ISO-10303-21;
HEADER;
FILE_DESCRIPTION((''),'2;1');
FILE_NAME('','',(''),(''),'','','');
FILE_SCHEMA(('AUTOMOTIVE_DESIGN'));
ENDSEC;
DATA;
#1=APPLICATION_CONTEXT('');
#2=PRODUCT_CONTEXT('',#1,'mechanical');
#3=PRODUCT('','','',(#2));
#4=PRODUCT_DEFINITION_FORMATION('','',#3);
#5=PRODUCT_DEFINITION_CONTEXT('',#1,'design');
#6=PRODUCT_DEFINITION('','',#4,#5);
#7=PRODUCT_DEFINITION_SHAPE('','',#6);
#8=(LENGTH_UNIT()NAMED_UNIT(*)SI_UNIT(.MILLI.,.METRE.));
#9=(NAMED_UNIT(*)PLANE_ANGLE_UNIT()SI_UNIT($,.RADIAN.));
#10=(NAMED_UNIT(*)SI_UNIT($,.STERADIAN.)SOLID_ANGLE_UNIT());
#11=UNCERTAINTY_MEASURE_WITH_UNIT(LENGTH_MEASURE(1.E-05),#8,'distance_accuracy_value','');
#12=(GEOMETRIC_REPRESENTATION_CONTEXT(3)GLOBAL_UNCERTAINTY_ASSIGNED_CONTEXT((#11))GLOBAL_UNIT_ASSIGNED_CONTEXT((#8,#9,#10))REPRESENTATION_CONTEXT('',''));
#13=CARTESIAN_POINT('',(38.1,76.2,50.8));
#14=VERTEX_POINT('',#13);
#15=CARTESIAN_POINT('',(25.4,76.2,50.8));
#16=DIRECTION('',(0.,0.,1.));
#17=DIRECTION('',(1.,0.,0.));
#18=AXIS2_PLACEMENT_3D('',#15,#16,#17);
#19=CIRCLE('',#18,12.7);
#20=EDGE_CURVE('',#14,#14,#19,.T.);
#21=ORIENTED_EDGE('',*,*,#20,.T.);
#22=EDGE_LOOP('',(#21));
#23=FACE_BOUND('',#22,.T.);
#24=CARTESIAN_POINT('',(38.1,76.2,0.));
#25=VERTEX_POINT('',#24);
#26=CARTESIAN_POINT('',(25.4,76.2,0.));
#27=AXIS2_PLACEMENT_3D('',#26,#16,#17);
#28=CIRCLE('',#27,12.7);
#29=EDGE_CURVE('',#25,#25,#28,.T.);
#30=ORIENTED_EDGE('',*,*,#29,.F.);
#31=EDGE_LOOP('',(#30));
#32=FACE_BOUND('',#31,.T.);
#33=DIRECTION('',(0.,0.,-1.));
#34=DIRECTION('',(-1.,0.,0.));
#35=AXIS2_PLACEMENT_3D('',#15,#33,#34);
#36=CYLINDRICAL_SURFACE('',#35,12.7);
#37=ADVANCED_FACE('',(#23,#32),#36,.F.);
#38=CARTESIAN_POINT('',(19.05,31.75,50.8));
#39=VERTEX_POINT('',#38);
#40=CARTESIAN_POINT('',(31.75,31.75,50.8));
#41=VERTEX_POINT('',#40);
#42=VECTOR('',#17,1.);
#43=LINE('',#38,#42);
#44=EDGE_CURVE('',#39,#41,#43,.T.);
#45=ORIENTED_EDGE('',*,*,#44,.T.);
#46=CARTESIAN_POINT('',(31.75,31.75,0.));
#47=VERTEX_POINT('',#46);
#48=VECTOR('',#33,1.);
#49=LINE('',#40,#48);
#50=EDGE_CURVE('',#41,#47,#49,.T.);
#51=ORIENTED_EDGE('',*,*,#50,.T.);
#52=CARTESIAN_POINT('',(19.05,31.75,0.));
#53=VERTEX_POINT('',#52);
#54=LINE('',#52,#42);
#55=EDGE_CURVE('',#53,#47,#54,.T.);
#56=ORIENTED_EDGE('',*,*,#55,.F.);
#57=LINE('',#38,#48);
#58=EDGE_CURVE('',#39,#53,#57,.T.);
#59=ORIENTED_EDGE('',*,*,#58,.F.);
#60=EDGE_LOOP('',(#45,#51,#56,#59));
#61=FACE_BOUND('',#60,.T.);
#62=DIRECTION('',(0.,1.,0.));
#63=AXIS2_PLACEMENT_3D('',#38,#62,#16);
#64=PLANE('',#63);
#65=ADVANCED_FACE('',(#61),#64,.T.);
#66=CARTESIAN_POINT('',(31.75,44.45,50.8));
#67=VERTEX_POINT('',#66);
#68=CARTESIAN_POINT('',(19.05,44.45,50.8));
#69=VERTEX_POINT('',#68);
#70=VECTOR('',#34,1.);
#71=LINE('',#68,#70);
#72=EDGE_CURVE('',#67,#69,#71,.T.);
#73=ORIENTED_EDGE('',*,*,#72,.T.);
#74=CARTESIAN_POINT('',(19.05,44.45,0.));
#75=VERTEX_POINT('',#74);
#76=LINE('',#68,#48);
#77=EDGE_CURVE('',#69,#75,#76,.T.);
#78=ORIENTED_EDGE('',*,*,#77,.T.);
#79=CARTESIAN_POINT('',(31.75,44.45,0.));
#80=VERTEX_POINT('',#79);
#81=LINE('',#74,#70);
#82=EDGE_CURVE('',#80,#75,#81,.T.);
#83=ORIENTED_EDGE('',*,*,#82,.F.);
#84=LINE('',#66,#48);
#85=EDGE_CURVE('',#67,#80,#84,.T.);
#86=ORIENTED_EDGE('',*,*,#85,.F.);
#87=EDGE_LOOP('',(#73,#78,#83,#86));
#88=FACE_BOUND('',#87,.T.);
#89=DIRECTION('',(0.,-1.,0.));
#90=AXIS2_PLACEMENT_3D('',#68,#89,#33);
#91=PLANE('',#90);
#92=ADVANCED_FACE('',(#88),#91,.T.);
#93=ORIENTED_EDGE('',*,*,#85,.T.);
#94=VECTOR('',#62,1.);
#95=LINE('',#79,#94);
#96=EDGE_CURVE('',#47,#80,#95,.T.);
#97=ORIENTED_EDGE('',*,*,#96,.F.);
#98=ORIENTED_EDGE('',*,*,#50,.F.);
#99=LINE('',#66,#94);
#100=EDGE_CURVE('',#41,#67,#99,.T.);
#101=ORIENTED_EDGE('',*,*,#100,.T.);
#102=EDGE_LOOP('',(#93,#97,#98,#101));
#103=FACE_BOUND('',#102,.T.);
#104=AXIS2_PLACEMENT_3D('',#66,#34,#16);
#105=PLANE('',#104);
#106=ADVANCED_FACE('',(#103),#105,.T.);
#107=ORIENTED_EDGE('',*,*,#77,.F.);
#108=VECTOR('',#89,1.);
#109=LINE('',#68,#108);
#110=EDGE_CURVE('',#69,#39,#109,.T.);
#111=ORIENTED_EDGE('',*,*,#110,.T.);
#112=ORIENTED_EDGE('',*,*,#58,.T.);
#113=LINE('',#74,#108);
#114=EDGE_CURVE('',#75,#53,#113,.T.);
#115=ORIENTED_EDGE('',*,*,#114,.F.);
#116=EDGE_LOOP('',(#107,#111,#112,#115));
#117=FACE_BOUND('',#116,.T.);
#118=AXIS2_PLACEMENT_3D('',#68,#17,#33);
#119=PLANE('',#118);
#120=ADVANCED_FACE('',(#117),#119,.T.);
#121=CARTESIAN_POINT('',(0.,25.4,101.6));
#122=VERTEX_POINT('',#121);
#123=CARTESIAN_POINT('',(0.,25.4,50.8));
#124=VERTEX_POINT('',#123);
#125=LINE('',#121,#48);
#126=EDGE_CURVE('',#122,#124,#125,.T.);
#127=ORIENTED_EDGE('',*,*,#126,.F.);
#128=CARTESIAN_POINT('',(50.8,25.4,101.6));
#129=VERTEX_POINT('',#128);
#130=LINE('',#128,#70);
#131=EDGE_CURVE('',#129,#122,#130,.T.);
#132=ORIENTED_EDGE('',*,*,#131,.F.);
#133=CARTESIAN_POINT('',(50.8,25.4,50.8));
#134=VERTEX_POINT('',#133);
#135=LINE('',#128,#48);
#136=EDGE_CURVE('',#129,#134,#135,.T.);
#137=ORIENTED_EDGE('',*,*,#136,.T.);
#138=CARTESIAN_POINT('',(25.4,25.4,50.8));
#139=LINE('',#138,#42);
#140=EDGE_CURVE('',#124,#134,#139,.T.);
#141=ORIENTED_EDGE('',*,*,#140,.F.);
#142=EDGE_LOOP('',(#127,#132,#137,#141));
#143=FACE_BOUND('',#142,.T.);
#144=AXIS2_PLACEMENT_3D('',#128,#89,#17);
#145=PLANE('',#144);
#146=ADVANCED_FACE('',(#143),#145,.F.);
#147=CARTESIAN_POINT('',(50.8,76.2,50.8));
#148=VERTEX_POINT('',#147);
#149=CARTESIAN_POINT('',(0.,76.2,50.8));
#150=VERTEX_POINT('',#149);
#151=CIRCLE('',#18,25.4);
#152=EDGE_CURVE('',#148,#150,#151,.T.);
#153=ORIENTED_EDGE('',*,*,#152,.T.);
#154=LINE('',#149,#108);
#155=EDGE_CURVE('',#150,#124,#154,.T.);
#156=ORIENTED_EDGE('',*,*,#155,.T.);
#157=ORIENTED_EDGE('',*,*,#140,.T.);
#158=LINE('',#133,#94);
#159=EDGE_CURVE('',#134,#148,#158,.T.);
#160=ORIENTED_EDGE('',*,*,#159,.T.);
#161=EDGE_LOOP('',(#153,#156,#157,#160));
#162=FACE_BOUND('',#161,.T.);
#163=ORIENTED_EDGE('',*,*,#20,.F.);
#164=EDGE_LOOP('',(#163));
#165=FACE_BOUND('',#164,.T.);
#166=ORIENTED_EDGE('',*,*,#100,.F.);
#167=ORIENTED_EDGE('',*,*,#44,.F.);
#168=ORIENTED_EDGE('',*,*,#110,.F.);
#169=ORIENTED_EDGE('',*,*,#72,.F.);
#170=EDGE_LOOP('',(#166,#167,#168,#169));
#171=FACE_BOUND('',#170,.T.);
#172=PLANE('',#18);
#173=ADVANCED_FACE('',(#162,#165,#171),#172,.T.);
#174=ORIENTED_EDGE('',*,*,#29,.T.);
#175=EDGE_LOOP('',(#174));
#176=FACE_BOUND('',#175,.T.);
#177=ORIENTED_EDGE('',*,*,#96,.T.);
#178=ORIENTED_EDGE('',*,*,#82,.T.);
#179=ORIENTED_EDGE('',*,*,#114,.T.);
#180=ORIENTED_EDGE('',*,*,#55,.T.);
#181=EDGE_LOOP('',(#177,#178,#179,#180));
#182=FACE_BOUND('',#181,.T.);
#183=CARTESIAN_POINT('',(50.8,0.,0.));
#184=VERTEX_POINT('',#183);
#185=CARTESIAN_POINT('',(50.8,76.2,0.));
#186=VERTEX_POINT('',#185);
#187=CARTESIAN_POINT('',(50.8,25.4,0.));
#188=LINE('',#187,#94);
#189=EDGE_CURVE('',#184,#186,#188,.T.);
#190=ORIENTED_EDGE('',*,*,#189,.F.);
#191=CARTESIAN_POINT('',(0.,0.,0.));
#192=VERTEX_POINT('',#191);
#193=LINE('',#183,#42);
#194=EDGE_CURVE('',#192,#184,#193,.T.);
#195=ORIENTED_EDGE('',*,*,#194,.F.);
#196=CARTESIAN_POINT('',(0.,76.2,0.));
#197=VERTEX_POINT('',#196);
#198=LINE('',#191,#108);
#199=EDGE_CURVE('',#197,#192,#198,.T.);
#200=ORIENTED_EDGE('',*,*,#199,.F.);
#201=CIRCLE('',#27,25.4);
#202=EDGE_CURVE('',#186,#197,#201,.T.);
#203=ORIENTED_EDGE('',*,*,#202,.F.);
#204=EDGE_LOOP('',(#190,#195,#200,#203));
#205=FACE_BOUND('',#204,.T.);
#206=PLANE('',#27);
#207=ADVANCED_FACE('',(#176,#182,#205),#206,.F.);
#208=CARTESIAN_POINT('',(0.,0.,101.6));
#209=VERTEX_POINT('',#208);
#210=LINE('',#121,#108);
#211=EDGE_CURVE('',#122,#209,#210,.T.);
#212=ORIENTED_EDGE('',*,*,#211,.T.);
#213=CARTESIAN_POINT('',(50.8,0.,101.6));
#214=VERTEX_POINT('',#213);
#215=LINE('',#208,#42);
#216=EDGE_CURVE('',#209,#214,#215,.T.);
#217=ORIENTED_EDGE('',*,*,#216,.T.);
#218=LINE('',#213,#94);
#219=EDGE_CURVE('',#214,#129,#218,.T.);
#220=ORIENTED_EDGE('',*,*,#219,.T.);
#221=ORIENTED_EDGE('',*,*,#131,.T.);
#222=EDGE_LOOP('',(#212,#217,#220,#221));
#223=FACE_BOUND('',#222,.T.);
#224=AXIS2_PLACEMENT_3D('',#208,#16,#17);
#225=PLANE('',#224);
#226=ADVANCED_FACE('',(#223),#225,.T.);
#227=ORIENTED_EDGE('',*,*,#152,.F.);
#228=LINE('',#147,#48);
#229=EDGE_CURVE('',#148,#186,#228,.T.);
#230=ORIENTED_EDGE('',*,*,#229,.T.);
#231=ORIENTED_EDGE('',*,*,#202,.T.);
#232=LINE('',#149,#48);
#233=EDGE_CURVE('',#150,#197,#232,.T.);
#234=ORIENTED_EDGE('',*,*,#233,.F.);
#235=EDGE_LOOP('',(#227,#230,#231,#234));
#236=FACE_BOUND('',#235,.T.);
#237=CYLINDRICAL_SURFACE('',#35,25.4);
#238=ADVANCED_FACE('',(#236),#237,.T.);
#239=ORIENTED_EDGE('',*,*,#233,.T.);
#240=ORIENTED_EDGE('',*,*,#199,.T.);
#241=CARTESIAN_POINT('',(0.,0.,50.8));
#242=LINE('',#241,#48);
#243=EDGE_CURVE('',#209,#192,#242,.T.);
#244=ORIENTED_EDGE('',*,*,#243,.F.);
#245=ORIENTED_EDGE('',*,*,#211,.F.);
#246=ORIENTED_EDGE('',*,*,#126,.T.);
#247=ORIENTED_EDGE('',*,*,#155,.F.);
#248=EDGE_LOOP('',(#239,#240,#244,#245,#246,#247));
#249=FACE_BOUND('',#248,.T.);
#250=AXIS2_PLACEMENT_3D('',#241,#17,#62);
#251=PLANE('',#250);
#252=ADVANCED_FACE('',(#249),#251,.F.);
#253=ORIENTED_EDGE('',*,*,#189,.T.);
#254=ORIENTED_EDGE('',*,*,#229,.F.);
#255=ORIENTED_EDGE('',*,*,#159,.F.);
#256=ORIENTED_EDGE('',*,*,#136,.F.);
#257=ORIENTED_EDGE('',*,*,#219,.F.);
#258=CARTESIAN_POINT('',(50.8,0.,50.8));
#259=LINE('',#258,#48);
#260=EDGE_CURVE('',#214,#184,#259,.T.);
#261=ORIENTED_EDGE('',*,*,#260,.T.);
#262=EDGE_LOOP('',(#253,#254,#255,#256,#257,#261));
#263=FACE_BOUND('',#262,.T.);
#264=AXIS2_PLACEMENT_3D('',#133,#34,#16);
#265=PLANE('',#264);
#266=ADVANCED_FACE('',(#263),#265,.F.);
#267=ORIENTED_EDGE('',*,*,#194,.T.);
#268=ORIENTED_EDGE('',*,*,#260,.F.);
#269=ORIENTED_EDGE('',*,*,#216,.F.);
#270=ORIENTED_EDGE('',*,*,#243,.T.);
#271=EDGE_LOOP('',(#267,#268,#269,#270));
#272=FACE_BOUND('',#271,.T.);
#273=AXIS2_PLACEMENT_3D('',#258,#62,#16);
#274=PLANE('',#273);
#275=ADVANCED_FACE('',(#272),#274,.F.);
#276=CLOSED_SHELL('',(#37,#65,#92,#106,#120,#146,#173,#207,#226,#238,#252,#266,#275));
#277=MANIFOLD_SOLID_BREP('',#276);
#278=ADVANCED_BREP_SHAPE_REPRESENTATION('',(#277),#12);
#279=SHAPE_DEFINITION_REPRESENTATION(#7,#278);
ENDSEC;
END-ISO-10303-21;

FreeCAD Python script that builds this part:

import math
import FreeCAD as App
import Part
import Sketcher
from FreeCAD import Vector
Q = App.Units.Quantity


def add_polygon(sketch, points):
    """Adds a closed chain of lines whose ends are joined by coincident constraints."""
    first, n = sketch.GeometryCount, len(points)
    for a, b in zip(points, points[1:] + points[:1]):
        sketch.addGeometry(Part.LineSegment(App.Vector(*a, 0), App.Vector(*b, 0)), False)
    for i in range(n):
        sketch.addConstraint(Sketcher.Constraint("Coincident", first + i, 2, first + (i + 1) % n, 1))

doc = App.newDocument("Part")
body = doc.addObject("PartDesign::Body", "Body")

# Sketch on XY plane
sketch1 = doc.addObject("Sketcher::SketchObject", "Sketch")
body.addObject(sketch1)
sketch1.AttachmentSupport = (doc.XY_Plane, [""])
sketch1.MapMode = "FlatFace"
sketch1.addGeometry(Part.ArcOfCircle(Part.Circle(Vector(25, 76, 0), Vector(0, 0, 1), 25), math.radians(0), math.radians(180)), False)  # 0
sketch1.addGeometry(Part.LineSegment(Vector(0, 76, 0), Vector(0, 0, 0)), False)  # 1
sketch1.addGeometry(Part.LineSegment(Vector(0, 0, 0), Vector(51, 0, 0)), False)  # 2
sketch1.addGeometry(Part.LineSegment(Vector(51, 0, 0), Vector(51, 76, 0)), False)  # 3
add_polygon(sketch1, [(32, 32), (19, 32), (19, 44), (32, 44)])  # lines 4-7
sketch1.addGeometry(Part.Circle(Vector(25, 76, 0), Vector(0, 0, 1), 13), False)  # 8
sketch1.addConstraint([
    Sketcher.Constraint("Tangent", 0, 2, 1, 1),
    Sketcher.Constraint("Coincident", 1, 2, 2, 1),
    Sketcher.Constraint("Coincident", 2, 2, 3, 1),
    Sketcher.Constraint("Tangent", 3, 2, 0, 1),
    Sketcher.Constraint("Vertical", 1),
    Sketcher.Constraint("Horizontal", 2),
    Sketcher.Constraint("Vertical", 3),
    Sketcher.Constraint("Horizontal", 4),
    Sketcher.Constraint("Vertical", 5),
    Sketcher.Constraint("Horizontal", 6),
    Sketcher.Constraint("Vertical", 7),
    Sketcher.Constraint("Coincident", 1, 2, -1, 1),
    Sketcher.Constraint("Coincident", 8, 3, 0, 3),
    Sketcher.Constraint("Equal", 6, 5),
    Sketcher.Constraint("Diameter", 8, Q("1 in")),
    Sketcher.Constraint("Radius", 0, Q("1 in")),
    Sketcher.Constraint("DistanceY", 1, 2, 1, 1, Q("3 in")),
    Sketcher.Constraint("DistanceX", 4, 2, 4, 1, Q("0.5 in")),
    Sketcher.Constraint("DistanceX", -1, 1, 4, 2, Q("0.75 in")),
    Sketcher.Constraint("DistanceY", -1, 1, 4, 2, Q("1.25 in")),
])
pad1 = doc.addObject("PartDesign::Pad", "Pad")
body.addObject(pad1)
pad1.Profile = sketch1
pad1.Length = Q("2 in")

# Sketch on XY plane
sketch2 = doc.addObject("Sketcher::SketchObject", "Sketch001")
body.addObject(sketch2)
sketch2.AttachmentSupport = (doc.XY_Plane, [""])
sketch2.MapMode = "FlatFace"
add_polygon(sketch2, [(0, 25), (0, 0), (51, 0), (51, 25)])  # lines 0-3
sketch2.addConstraint([
    Sketcher.Constraint("Vertical", 0),
    Sketcher.Constraint("Horizontal", 1),
    Sketcher.Constraint("Vertical", 2),
    Sketcher.Constraint("Horizontal", 3),
    Sketcher.Constraint("Coincident", 0, 2, -1, 1),
    Sketcher.Constraint("DistanceX", 1, 1, 1, 2, Q("2 in")),
    Sketcher.Constraint("DistanceY", 0, 2, 0, 1, Q("1 in")),
])
pad2 = doc.addObject("PartDesign::Pad", "Pad001")
body.addObject(pad2)
pad2.Profile = sketch2
pad2.Length = Q("4 in")

doc.recompute()
